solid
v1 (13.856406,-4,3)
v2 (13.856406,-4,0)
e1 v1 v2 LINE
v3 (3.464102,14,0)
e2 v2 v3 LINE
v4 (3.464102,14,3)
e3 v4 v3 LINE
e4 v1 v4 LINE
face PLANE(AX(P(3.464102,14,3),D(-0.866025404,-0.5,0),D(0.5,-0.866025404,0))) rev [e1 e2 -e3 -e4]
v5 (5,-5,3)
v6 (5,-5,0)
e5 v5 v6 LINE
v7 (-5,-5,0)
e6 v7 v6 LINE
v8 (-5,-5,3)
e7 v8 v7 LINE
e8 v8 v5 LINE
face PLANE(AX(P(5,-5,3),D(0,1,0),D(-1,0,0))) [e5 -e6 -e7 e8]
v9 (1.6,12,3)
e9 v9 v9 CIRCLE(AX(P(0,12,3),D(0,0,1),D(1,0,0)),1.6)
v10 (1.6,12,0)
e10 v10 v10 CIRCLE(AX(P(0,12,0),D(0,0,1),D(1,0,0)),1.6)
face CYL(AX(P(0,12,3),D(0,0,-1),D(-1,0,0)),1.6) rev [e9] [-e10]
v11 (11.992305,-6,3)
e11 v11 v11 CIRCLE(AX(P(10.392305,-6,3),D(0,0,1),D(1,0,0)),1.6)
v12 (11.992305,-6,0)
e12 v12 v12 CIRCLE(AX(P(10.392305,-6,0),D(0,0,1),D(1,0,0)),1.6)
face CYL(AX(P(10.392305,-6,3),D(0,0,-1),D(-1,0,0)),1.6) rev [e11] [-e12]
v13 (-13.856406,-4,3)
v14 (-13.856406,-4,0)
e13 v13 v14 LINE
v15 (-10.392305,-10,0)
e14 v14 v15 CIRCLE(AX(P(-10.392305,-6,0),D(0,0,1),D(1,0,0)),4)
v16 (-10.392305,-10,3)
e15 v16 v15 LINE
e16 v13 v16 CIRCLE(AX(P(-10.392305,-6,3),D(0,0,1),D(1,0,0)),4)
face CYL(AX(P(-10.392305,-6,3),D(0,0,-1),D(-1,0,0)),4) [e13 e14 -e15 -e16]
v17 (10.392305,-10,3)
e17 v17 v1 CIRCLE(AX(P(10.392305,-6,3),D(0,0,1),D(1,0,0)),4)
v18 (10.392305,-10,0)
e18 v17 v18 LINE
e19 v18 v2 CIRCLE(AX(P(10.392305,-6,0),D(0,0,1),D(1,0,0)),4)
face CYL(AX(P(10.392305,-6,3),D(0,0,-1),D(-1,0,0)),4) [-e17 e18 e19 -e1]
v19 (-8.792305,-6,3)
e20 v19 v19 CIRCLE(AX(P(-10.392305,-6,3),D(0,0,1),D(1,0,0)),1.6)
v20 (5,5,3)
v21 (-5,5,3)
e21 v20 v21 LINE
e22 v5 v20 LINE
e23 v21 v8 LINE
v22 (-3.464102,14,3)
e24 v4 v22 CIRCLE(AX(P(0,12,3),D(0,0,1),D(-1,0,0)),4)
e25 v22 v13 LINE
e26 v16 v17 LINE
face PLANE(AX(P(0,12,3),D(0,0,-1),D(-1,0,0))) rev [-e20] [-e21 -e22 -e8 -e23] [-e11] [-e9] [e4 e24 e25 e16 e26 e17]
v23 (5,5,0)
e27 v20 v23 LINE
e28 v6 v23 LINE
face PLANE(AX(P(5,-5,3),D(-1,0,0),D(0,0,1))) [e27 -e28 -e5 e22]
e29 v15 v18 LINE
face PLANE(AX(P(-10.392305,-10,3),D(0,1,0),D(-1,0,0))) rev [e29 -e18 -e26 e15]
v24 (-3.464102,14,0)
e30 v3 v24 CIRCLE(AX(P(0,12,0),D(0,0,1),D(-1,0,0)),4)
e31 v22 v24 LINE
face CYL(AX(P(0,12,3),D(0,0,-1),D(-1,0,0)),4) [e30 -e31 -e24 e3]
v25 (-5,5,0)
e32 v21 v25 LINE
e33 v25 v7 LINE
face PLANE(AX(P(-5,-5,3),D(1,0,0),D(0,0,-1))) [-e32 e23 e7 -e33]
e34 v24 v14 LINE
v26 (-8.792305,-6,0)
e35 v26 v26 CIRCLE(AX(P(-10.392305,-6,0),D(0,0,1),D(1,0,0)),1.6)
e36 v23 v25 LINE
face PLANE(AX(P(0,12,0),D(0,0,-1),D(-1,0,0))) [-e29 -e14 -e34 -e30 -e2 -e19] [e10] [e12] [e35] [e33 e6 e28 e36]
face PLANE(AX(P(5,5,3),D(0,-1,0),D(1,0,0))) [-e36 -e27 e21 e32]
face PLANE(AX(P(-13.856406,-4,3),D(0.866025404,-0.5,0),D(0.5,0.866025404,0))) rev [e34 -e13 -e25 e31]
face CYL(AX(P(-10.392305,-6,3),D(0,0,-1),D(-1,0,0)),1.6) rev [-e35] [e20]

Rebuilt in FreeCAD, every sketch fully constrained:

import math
import FreeCAD as App
import Part
import Sketcher
from FreeCAD import Vector
Q = App.Units.Quantity

doc = App.newDocument("Part")
body = doc.addObject("PartDesign::Body", "Body")

# Sketch on XY plane
sketch1 = body.newObject("Sketcher::SketchObject", "Sketch")
sketch1.AttachmentSupport = (doc.getObject("XY_Plane"), [""])
sketch1.MapMode = "FlatFace"
sketch1.addGeometry(Part.LineSegment(Vector(-3.5, 14, 0), Vector(-13.9, -4, 0)), False)
sketch1.addGeometry(Part.ArcOfCircle(Part.Circle(Vector(-10.4, -6, 0), Vector(0, 0, 1), 4), math.radians(150), math.radians(270)), False)
sketch1.addGeometry(Part.LineSegment(Vector(-10.4, -10, 0), Vector(10.4, -10, 0)), False)
sketch1.addGeometry(Part.ArcOfCircle(Part.Circle(Vector(10.4, -6, 0), Vector(0, 0, 1), 4), math.radians(-90), math.radians(30)), False)
sketch1.addGeometry(Part.LineSegment(Vector(13.9, -4, 0), Vector(3.5, 14, 0)), False)
sketch1.addGeometry(Part.ArcOfCircle(Part.Circle(Vector(0, 12, 0), Vector(0, 0, 1), 4), math.radians(30), math.radians(150)), False)
sketch1.addGeometry(Part.Circle(Vector(10.4, -6, 0), Vector(0, 0, 1), 1.6), False)
sketch1.addGeometry(Part.Circle(Vector(-10.4, -6, 0), Vector(0, 0, 1), 1.6), False)
sketch1.addGeometry(Part.LineSegment(Vector(-5, -5, 0), Vector(-5, 5, 0)), False)
sketch1.addGeometry(Part.LineSegment(Vector(-5, 5, 0), Vector(5, 5, 0)), False)
sketch1.addGeometry(Part.LineSegment(Vector(5, 5, 0), Vector(5, -5, 0)), False)
sketch1.addGeometry(Part.LineSegment(Vector(5, -5, 0), Vector(-5, -5, 0)), False)
sketch1.addGeometry(Part.Circle(Vector(0, 12, 0), Vector(0, 0, 1), 1.6), False)
sketch1.addConstraint(Sketcher.Constraint("Tangent", 0, 2, 1, 1))
sketch1.addConstraint(Sketcher.Constraint("Tangent", 1, 2, 2, 1))
sketch1.addConstraint(Sketcher.Constraint("Tangent", 2, 2, 3, 1))
sketch1.addConstraint(Sketcher.Constraint("Tangent", 3, 2, 4, 1))
sketch1.addConstraint(Sketcher.Constraint("Tangent", 4, 2, 5, 1))
sketch1.addConstraint(Sketcher.Constraint("Tangent", 5, 2, 0, 1))
sketch1.addConstraint(Sketcher.Constraint("Coincident", 8, 2, 9, 1))
sketch1.addConstraint(Sketcher.Constraint("Coincident", 9, 2, 10, 1))
sketch1.addConstraint(Sketcher.Constraint("Coincident", 10, 2, 11, 1))
sketch1.addConstraint(Sketcher.Constraint("Coincident", 11, 2, 8, 1))
sketch1.addConstraint(Sketcher.Constraint("Horizontal", 2))
sketch1.addConstraint(Sketcher.Constraint("Vertical", 8))
sketch1.addConstraint(Sketcher.Constraint("Horizontal", 9))
sketch1.addConstraint(Sketcher.Constraint("Vertical", 10))
sketch1.addConstraint(Sketcher.Constraint("Horizontal", 11))
sketch1.addConstraint(Sketcher.Constraint("Coincident", 6, 3, 3, 3))
sketch1.addConstraint(Sketcher.Constraint("Coincident", 7, 3, 1, 3))
sketch1.addConstraint(Sketcher.Constraint("Coincident", 12, 3, 5, 3))
sketch1.addConstraint(Sketcher.Constraint("Equal", 1, 3))
sketch1.addConstraint(Sketcher.Constraint("Equal", 3, 5))
sketch1.addConstraint(Sketcher.Constraint("Equal", 6, 7))
sketch1.addConstraint(Sketcher.Constraint("Equal", 7, 12))
sketch1.addConstraint(Sketcher.Constraint("Symmetric", 8, 2, 10, 2, -1, 1))
sketch1.addConstraint(Sketcher.Constraint("Symmetric", 0, 2, 3, 2, -2))
sketch1.addConstraint(Sketcher.Constraint("Equal", 11, 8))
sketch1.addConstraint(Sketcher.Constraint("Radius", 1, Q("4 mm")))
sketch1.addConstraint(Sketcher.Constraint("Diameter", 6, Q("3.2 mm")))
sketch1.addConstraint(Sketcher.Constraint("DistanceX", 9, 1, 9, 2, Q("10 mm")))
sketch1.addConstraint(Sketcher.Constraint("Angle", 0, Q("-120 deg")))
sketch1.addConstraint(Sketcher.Constraint("DistanceY", 1, 3, -1, 1, Q("6 mm")))
sketch1.addConstraint(Sketcher.Constraint("DistanceY", -1, 1, 5, 3, Q("12 mm")))
pad1 = body.newObject("PartDesign::Pad", "Pad")
pad1.Profile = sketch1
pad1.Length = 3

doc.recompute()
